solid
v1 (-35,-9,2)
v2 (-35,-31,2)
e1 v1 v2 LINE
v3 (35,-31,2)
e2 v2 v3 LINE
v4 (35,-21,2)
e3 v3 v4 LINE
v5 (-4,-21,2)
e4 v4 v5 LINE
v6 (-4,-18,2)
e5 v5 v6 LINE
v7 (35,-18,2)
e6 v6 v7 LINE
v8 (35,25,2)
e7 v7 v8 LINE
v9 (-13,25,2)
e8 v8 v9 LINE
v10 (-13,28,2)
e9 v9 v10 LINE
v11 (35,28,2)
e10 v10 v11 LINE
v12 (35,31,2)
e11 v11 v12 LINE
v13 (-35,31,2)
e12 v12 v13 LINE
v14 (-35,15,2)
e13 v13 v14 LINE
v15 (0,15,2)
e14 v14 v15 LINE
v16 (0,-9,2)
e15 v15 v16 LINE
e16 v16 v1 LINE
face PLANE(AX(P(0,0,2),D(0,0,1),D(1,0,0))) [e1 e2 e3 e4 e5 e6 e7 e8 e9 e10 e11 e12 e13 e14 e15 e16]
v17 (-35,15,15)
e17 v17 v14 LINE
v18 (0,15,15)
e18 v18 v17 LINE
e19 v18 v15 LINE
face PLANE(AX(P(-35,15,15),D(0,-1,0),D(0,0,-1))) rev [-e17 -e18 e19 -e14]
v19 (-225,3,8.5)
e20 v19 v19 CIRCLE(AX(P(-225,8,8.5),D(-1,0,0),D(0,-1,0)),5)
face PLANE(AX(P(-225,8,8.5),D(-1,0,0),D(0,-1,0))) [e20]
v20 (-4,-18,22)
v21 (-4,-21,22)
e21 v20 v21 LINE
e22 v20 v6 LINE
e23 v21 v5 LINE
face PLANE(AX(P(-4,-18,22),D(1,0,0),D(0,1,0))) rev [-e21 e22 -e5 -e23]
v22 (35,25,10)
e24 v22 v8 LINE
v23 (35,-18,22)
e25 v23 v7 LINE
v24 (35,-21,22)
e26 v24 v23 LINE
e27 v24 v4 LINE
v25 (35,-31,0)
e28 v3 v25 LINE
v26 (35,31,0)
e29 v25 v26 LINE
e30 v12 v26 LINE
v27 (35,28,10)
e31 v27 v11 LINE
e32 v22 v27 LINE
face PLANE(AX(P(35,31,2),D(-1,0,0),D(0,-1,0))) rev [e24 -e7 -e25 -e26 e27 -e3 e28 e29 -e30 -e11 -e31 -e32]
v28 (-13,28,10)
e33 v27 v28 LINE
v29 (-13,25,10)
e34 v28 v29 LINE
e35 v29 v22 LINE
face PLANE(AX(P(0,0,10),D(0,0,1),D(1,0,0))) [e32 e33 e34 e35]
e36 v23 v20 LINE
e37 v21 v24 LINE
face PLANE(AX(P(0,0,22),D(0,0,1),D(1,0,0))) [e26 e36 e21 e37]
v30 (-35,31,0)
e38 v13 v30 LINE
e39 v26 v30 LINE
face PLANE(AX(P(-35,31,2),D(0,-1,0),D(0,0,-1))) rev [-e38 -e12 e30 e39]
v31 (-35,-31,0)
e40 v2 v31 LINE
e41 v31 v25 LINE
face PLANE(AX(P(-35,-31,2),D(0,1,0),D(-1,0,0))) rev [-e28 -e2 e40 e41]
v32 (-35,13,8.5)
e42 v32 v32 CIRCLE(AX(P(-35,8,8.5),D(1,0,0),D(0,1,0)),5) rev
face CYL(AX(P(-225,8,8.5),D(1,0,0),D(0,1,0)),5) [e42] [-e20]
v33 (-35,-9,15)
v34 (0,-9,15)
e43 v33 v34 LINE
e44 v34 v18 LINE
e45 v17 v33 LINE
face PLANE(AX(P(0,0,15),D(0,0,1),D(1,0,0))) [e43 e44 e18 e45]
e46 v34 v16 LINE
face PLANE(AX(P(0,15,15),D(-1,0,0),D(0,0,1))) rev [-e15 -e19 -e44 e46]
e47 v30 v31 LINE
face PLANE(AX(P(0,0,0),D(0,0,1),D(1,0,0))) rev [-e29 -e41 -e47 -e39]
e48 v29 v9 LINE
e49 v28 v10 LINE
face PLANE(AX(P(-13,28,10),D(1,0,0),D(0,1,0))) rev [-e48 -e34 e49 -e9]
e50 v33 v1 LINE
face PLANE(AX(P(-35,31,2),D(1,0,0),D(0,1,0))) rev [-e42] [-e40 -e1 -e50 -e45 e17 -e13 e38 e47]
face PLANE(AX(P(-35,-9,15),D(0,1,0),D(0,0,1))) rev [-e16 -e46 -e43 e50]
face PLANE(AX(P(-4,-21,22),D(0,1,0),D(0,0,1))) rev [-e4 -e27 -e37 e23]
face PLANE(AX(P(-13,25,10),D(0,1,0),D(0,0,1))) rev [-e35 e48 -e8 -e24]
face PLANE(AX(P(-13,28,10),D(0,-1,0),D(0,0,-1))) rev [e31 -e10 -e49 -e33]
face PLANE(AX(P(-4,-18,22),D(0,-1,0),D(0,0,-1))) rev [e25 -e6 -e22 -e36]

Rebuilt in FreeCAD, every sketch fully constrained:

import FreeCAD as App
import Part
import Sketcher
from FreeCAD import Vector


def add_polygon(sketch, points):
    """Adds a closed chain of lines whose ends are joined by coincident constraints."""
    first, n = sketch.GeometryCount, len(points)
    for a, b in zip(points, points[1:] + points[:1]):
        sketch.addGeometry(Part.LineSegment(App.Vector(*a, 0), App.Vector(*b, 0)), False)
    for i in range(n):
        sketch.addConstraint(Sketcher.Constraint("Coincident", first + i, 2, first + (i + 1) % n, 1))

doc = App.newDocument("Part")
params = doc.addObject("Spreadsheet::Sheet", "Params")
for row, (alias, value) in enumerate([
    ("sketch1_width", "70 mm"),
    ("sketch1_height", "62 mm"),
    ("pad1_length", "2 mm"),
    ("sketch2_width", "35 mm"),
    ("sketch2_height", "24 mm"),
    ("pad2_length", "15 mm"),
    ("sketch3_width", "39 mm"),
    ("sketch3_height", "3 mm"),
    ("pad3_length", "22 mm"),
    ("sketch4_width", "48 mm"),
    ("sketch4_height", "3 mm"),
    ("pad4_length", "10 mm"),
    ("sketch5_diameter", "10 mm"),
    ("pad5_length", "190 mm"),
], start=1):
    params.set(f"A{row}", alias)
    params.set(f"B{row}", "=" + value)
    params.setAlias(f"B{row}", alias)

body = doc.addObject("PartDesign::Body", "Body")

# Sketch on XY plane
sketch1 = doc.addObject("Sketcher::SketchObject", "Sketch")
body.addObject(sketch1)
sketch1.AttachmentSupport = (doc.XY_Plane, [""])
sketch1.MapMode = "FlatFace"
add_polygon(sketch1, [(-35, 31), (-35, -31), (35, -31), (35, 31)])  # lines 0-3
sketch1.addConstraint(Sketcher.Constraint("Vertical", 0))
sketch1.addConstraint(Sketcher.Constraint("Horizontal", 1))
sketch1.addConstraint(Sketcher.Constraint("Vertical", 2))
sketch1.addConstraint(Sketcher.Constraint("Horizontal", 3))
sketch1.addConstraint(Sketcher.Constraint("Symmetric", 0, 2, 2, 2, -1, 1))
sketch1.addConstraint(Sketcher.Constraint("DistanceX", 1, 1, 1, 2, 70.0))
sketch1.addConstraint(Sketcher.Constraint("DistanceY", 0, 2, 0, 1, 62.0))
sketch1.setExpression("Constraints[9]", "Params.sketch1_width")
sketch1.setExpression("Constraints[10]", "Params.sketch1_height")
pad1 = doc.addObject("PartDesign::Pad", "Pad")
body.addObject(pad1)
pad1.Profile = sketch1
pad1.setExpression("Length", "Params.pad1_length")

# Sketch on XY plane
sketch2 = doc.addObject("Sketcher::SketchObject", "Sketch001")
body.addObject(sketch2)
sketch2.AttachmentSupport = (doc.XY_Plane, [""])
sketch2.MapMode = "FlatFace"
add_polygon(sketch2, [(-35, 15), (-35, -9), (0, -9), (0, 15)])  # lines 0-3
sketch2.addConstraint(Sketcher.Constraint("Vertical", 0))
sketch2.addConstraint(Sketcher.Constraint("Horizontal", 1))
sketch2.addConstraint(Sketcher.Constraint("Vertical", 2))
sketch2.addConstraint(Sketcher.Constraint("Horizontal", 3))
sketch2.addConstraint(Sketcher.Constraint("PointOnObject", 1, 2, -2))
sketch2.addConstraint(Sketcher.Constraint("DistanceX", 1, 1, 1, 2, 35.0))
sketch2.addConstraint(Sketcher.Constraint("DistanceY", 0, 2, 0, 1, 24.0))
sketch2.addConstraint(Sketcher.Constraint("DistanceY", 0, 2, -1, 1, 9.0))
sketch2.setExpression("Constraints[9]", "Params.sketch2_width")
sketch2.setExpression("Constraints[10]", "Params.sketch2_height")
pad2 = doc.addObject("PartDesign::Pad", "Pad001")
body.addObject(pad2)
pad2.Profile = sketch2
pad2.setExpression("Length", "Params.pad2_length")

# Sketch on XY plane
sketch3 = doc.addObject("Sketcher::SketchObject", "Sketch002")
body.addObject(sketch3)
sketch3.AttachmentSupport = (doc.XY_Plane, [""])
sketch3.MapMode = "FlatFace"
add_polygon(sketch3, [(-4, -18), (-4, -21), (35, -21), (35, -18)])  # lines 0-3
sketch3.addConstraint(Sketcher.Constraint("Vertical", 0))
sketch3.addConstraint(Sketcher.Constraint("Horizontal", 1))
sketch3.addConstraint(Sketcher.Constraint("Vertical", 2))
sketch3.addConstraint(Sketcher.Constraint("Horizontal", 3))
sketch3.addConstraint(Sketcher.Constraint("DistanceX", 1, 1, 1, 2, 39.0))
sketch3.addConstraint(Sketcher.Constraint("DistanceY", 0, 2, 0, 1, 3.0))
sketch3.addConstraint(Sketcher.Constraint("DistanceX", 0, 2, -1, 1, 4.0))
sketch3.addConstraint(Sketcher.Constraint("DistanceY", 0, 2, -1, 1, 21.0))
sketch3.setExpression("Constraints[8]", "Params.sketch3_width")
sketch3.setExpression("Constraints[9]", "Params.sketch3_height")
pad3 = doc.addObject("PartDesign::Pad", "Pad002")
body.addObject(pad3)
pad3.Profile = sketch3
pad3.setExpression("Length", "Params.pad3_length")

# Sketch on XY plane
sketch4 = doc.addObject("Sketcher::SketchObject", "Sketch003")
body.addObject(sketch4)
sketch4.AttachmentSupport = (doc.XY_Plane, [""])
sketch4.MapMode = "FlatFace"
add_polygon(sketch4, [(-13, 28), (-13, 25), (35, 25), (35, 28)])  # lines 0-3
sketch4.addConstraint(Sketcher.Constraint("Vertical", 0))
sketch4.addConstraint(Sketcher.Constraint("Horizontal", 1))
sketch4.addConstraint(Sketcher.Constraint("Vertical", 2))
sketch4.addConstraint(Sketcher.Constraint("Horizontal", 3))
sketch4.addConstraint(Sketcher.Constraint("DistanceX", 1, 1, 1, 2, 48.0))
sketch4.addConstraint(Sketcher.Constraint("DistanceY", 0, 2, 0, 1, 3.0))
sketch4.addConstraint(Sketcher.Constraint("DistanceX", 0, 2, -1, 1, 13.0))
sketch4.addConstraint(Sketcher.Constraint("DistanceY", -1, 1, 0, 2, 25.0))
sketch4.setExpression("Constraints[8]", "Params.sketch4_width")
sketch4.setExpression("Constraints[9]", "Params.sketch4_height")
pad4 = doc.addObject("PartDesign::Pad", "Pad003")
body.addObject(pad4)
pad4.Profile = sketch4
pad4.setExpression("Length", "Params.pad4_length")

# Sketch on YZ plane
sketch5 = doc.addObject("Sketcher::SketchObject", "Sketch004")
body.addObject(sketch5)
sketch5.AttachmentSupport = (doc.YZ_Plane, [""])
sketch5.MapMode = "FlatFace"
sketch5.AttachmentOffset = App.Placement(Vector(0, 0, -35), App.Rotation())
sketch5.addGeometry(Part.Circle(Vector(8, 8, 0), Vector(0, 0, 1), 5), False)
sketch5.addConstraint(Sketcher.Constraint("Diameter", 0, 10.0))
sketch5.addConstraint(Sketcher.Constraint("DistanceX", -1, 1, 0, 3, 8.0))
sketch5.addConstraint(Sketcher.Constraint("DistanceY", -1, 1, 0, 3, 8.5))
sketch5.setExpression("Constraints[0]", "Params.sketch5_diameter")
pad5 = doc.addObject("PartDesign::Pad", "Pad004")
body.addObject(pad5)
pad5.Profile = sketch5
pad5.setExpression("Length", "Params.pad5_length")
pad5.Reversed = True

doc.recompute()
